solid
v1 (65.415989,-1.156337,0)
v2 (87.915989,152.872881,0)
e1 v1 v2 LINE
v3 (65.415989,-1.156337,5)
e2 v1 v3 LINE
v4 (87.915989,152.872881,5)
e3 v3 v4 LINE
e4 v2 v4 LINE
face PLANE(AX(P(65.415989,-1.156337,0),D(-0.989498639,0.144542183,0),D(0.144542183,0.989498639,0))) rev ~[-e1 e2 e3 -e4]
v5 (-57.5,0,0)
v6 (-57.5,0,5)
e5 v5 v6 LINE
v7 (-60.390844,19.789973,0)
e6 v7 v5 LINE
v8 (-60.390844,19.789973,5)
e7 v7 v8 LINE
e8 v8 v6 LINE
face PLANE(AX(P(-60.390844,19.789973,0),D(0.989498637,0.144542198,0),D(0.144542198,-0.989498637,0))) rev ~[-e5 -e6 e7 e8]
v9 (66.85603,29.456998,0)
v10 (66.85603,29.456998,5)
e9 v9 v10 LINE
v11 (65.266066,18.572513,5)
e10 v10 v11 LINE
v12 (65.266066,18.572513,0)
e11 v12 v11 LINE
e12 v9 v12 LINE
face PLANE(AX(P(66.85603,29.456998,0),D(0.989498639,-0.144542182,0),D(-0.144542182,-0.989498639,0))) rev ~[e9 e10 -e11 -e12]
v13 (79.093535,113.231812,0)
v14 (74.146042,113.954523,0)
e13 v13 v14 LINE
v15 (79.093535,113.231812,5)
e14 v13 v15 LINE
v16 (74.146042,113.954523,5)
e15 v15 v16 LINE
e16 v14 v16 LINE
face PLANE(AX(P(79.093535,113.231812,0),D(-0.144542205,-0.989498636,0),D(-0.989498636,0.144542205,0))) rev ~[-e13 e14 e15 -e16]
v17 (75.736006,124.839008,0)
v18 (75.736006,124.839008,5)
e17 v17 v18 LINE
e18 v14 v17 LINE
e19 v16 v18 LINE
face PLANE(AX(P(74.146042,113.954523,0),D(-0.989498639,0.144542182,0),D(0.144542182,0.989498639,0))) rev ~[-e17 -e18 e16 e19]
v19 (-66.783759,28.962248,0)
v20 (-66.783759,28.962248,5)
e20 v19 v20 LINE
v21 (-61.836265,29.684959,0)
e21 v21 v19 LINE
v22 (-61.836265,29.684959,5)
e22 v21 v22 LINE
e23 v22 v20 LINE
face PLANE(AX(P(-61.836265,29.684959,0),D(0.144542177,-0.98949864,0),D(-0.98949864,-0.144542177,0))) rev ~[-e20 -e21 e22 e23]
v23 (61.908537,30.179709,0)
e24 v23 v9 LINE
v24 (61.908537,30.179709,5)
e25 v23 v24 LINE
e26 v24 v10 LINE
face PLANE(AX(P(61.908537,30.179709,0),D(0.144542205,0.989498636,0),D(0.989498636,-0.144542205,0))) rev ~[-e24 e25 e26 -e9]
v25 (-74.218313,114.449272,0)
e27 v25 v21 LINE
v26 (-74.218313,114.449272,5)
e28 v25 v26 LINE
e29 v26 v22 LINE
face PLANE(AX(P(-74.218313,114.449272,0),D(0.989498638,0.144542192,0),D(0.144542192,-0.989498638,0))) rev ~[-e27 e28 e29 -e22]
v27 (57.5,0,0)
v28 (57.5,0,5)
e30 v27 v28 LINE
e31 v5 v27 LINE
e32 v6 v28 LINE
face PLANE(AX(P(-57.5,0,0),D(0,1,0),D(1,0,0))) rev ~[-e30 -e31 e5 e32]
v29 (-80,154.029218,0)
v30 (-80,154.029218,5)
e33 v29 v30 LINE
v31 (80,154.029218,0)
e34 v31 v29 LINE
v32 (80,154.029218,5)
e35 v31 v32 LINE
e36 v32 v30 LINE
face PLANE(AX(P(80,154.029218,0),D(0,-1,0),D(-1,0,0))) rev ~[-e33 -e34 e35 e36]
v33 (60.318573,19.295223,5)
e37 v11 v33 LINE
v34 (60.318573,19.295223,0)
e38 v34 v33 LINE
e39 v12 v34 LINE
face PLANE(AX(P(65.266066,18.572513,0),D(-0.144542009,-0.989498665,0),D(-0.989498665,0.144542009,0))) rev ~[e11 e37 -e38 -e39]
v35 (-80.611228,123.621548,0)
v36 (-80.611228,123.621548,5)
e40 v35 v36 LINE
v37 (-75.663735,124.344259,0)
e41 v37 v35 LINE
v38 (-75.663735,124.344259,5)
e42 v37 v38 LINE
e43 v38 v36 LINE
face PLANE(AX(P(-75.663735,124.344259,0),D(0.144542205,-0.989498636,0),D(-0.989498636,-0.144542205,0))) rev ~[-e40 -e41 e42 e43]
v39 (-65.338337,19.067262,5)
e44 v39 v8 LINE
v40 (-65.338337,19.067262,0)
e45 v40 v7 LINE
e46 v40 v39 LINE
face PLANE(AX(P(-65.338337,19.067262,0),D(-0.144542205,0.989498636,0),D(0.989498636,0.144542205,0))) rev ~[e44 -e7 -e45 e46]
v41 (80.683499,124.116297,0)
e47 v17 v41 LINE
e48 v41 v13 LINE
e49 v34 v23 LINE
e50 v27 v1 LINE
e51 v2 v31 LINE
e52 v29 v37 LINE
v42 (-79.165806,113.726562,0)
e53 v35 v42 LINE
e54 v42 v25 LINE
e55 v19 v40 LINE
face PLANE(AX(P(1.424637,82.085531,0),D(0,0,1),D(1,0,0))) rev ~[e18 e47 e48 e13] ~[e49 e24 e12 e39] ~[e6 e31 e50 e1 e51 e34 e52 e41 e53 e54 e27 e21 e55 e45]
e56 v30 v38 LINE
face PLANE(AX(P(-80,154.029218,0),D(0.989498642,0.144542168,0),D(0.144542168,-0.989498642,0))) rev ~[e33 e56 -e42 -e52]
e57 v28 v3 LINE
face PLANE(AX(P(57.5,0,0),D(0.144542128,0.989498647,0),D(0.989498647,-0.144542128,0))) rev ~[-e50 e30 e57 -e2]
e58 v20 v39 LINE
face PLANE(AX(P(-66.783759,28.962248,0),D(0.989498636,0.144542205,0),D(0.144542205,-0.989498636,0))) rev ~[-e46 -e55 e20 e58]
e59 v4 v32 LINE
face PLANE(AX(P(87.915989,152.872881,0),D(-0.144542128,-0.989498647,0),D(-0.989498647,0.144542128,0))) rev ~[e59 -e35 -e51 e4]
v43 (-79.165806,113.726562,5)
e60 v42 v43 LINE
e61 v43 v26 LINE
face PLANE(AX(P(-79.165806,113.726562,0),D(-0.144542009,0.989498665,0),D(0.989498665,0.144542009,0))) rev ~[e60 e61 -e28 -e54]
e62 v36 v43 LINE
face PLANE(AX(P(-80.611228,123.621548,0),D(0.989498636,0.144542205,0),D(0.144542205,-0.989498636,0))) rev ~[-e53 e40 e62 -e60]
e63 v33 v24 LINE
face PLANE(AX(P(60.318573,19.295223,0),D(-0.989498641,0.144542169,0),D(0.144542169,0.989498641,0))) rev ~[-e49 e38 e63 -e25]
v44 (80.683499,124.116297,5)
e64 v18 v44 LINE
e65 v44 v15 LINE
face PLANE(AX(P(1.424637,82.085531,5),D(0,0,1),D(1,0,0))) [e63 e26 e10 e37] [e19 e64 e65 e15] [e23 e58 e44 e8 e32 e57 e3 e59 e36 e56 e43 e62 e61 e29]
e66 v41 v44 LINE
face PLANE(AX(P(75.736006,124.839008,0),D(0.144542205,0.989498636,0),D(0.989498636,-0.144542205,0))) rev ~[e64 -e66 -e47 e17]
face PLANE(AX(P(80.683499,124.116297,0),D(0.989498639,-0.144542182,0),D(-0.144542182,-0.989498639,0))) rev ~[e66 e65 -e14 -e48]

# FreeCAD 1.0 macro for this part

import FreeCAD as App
import Part
import Sketcher
from FreeCAD import Vector
Q = App.Units.Quantity


def add_polygon(sketch, points):
    """Adds a closed chain of lines whose ends are joined by coincident constraints."""
    first, n = sketch.GeometryCount, len(points)
    for a, b in zip(points, points[1:] + points[:1]):
        sketch.addGeometry(Part.LineSegment(App.Vector(*a, 0), App.Vector(*b, 0)), False)
    for i in range(n):
        sketch.addConstraint(Sketcher.Constraint("Coincident", first + i, 2, first + (i + 1) % n, 1))

doc = App.newDocument("Part")
body = doc.addObject("PartDesign::Body", "Body")

# Sketch on XY plane
sketch1 = body.newObject("Sketcher::SketchObject", "Sketch")
sketch1.AttachmentSupport = (doc.getObject("XY_Plane"), [""])
sketch1.MapMode = "FlatFace"
add_polygon(sketch1, [(80, 154), (-80, 154), (-75.7, 124.3), (-80.6, 123.6), (-79.2, 113.7), (-74.2, 114.4), (-61.8, 29.7), (-66.8, 29), (-65.3, 19.1), (-60.4, 19.8), (-57.5, 0), (57.5, 0), (65.4, -1.2), (87.9, 152.9)])  # lines 0-13
add_polygon(sketch1, [(66.9, 29.5), (65.3, 18.6), (60.3, 19.3), (61.9, 30.2)])  # lines 14-17
add_polygon(sketch1, [(80.7, 124.1), (79.1, 113.2), (74.1, 114), (75.7, 124.8)])  # lines 18-21
sketch1.addConstraint(Sketcher.Constraint("Horizontal", 0))
sketch1.addConstraint(Sketcher.Constraint("Horizontal", 10))
sketch1.addConstraint(Sketcher.Constraint("Symmetric", 9, 2, 10, 2, -1, 1))
sketch1.addConstraint(Sketcher.Constraint("Perpendicular", 1, 2))
sketch1.addConstraint(Sketcher.Constraint("Perpendicular", 2, 3))
sketch1.addConstraint(Sketcher.Constraint("Perpendicular", 3, 4))
sketch1.addConstraint(Sketcher.Constraint("Perpendicular", 4, 5))
sketch1.addConstraint(Sketcher.Constraint("Perpendicular", 5, 6))
sketch1.addConstraint(Sketcher.Constraint("Perpendicular", 6, 7))
sketch1.addConstraint(Sketcher.Constraint("Perpendicular", 7, 8))
sketch1.addConstraint(Sketcher.Constraint("Perpendicular", 8, 9))
sketch1.addConstraint(Sketcher.Constraint("Perpendicular", 11, 12))
sketch1.addConstraint(Sketcher.Constraint("Perpendicular", 12, 13))
sketch1.addConstraint(Sketcher.Constraint("Perpendicular", 13, 14))
sketch1.addConstraint(Sketcher.Constraint("Perpendicular", 14, 15))
sketch1.addConstraint(Sketcher.Constraint("Perpendicular", 15, 16))
sketch1.addConstraint(Sketcher.Constraint("Perpendicular", 16, 17))
sketch1.addConstraint(Sketcher.Constraint("Perpendicular", 17, 18))
sketch1.addConstraint(Sketcher.Constraint("Perpendicular", 18, 19))
sketch1.addConstraint(Sketcher.Constraint("Perpendicular", 19, 20))
sketch1.addConstraint(Sketcher.Constraint("Perpendicular", 20, 21))
sketch1.addConstraint(Sketcher.Constraint("Equal", 2, 4))
sketch1.addConstraint(Sketcher.Constraint("Equal", 4, 6))
sketch1.addConstraint(Sketcher.Constraint("Equal", 3, 7))
sketch1.addConstraint(Sketcher.Constraint("Equal", 6, 8))
sketch1.addConstraint(Sketcher.Constraint("Equal", 11, 13))
sketch1.addConstraint(Sketcher.Constraint("Equal", 8, 15))
sketch1.addConstraint(Sketcher.Constraint("Equal", 16, 18))
sketch1.addConstraint(Sketcher.Constraint("Equal", 17, 19))
sketch1.addConstraint(Sketcher.Constraint("DistanceX", 0, 2, 0, 1, Q("160 mm")))
sketch1.addConstraint(Sketcher.Constraint("DistanceX", 10, 1, 10, 2, Q("115 mm")))
sketch1.addConstraint(Sketcher.Constraint("Distance", 1, Q("30 mm")))
sketch1.addConstraint(Sketcher.Constraint("Distance", 2, Q("5 mm")))
sketch1.addConstraint(Sketcher.Constraint("Distance", 3, Q("10 mm")))
sketch1.addConstraint(Sketcher.Constraint("Distance", 9, Q("20 mm")))
sketch1.addConstraint(Sketcher.Constraint("Distance", 11, Q("8 mm")))
sketch1.addConstraint(Sketcher.Constraint("Distance", 14, Q("11 mm")))
sketch1.addConstraint(Sketcher.Constraint("DistanceX", 0, 2, -1, 1, Q("80 mm")))
sketch1.addConstraint(Sketcher.Constraint("DistanceX", 16, 2, 18, 2, Q("17.184998 mm")))
sketch1.addConstraint(Sketcher.Constraint("Distance", 5, Q("85.663901 mm")))
sketch1.addConstraint(Sketcher.Constraint("DistanceX", -1, 1, 21, 2, Q("80.683499 mm")))
sketch1.addConstraint(Sketcher.Constraint("DistanceY", 14, 2, 18, 2, Q("94.659299 mm")))
sketch1.addConstraint(Sketcher.Constraint("DistanceY", -1, 1, 16, 2, Q("30.179709 mm")))
pad1 = body.newObject("PartDesign::Pad", "Pad")
pad1.Profile = sketch1
pad1.Length = 5

doc.recompute()
